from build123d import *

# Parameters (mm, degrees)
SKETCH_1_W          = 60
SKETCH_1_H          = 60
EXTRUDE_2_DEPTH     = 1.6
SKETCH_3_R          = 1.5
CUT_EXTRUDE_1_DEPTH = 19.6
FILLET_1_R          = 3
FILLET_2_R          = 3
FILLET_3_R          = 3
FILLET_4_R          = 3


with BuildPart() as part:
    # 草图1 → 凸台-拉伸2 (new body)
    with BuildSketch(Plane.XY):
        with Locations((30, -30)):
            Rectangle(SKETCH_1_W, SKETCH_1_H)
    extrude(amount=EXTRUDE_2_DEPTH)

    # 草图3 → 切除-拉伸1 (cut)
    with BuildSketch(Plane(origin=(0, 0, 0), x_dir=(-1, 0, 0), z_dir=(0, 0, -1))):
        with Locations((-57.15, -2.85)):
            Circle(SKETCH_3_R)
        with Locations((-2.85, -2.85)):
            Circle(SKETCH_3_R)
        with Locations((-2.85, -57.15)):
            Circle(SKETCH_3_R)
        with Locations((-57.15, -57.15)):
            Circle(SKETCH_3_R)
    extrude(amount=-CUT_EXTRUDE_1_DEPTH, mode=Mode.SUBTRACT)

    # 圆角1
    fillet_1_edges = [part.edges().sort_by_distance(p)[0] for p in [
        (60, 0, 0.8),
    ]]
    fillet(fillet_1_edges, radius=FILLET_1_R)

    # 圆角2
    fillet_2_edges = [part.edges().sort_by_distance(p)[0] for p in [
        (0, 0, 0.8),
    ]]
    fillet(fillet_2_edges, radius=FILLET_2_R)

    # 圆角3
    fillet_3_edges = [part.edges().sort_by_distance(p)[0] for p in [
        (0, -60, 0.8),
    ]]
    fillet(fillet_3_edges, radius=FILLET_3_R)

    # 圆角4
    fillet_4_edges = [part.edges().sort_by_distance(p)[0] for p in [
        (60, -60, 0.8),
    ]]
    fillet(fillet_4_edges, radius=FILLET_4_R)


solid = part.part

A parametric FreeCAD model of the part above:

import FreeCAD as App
import Part
import Sketcher
from FreeCAD import Vector


def edges_at(feature, points):
    """Names of the edges that pass closest to the given points."""
    edges = feature.Shape.Edges
    near = lambda p: min(range(len(edges)), key=lambda i: edges[i].distToShape(Part.Vertex(*p))[0])
    return sorted({f"Edge{near(p) + 1}" for p in points})


def add_polygon(sketch, points):
    """Adds a closed chain of lines whose ends are joined by coincident constraints."""
    first, n = sketch.GeometryCount, len(points)
    for a, b in zip(points, points[1:] + points[:1]):
        sketch.addGeometry(Part.LineSegment(App.Vector(*a, 0), App.Vector(*b, 0)), False)
    for i in range(n):
        sketch.addConstraint(Sketcher.Constraint("Coincident", first + i, 2, first + (i + 1) % n, 1))

doc = App.newDocument("Part")
params = doc.addObject("Spreadsheet::Sheet", "Params")
for row, (alias, value) in enumerate([
    ("sketch1_width", "60 mm"),
    ("pad1_length", "1.6 mm"),
    ("sketch2_diameter", "3 mm"),
    ("pocket1_length", "19.6 mm"),
    ("fillet_radius", "3 mm"),
    ("fillet2_radius", "3 mm"),
    ("fillet3_radius", "3 mm"),
    ("fillet4_radius", "3 mm"),
], start=1):
    params.set(f"A{row}", alias)
    params.set(f"B{row}", "=" + value)
    params.setAlias(f"B{row}", alias)

body = doc.addObject("PartDesign::Body", "Body")

sketch1 = doc.addObject("Sketcher::SketchObject", "Sketch")
body.addObject(sketch1)
sketch1.AttachmentSupport = (doc.XY_Plane, [""])
sketch1.MapMode = "FlatFace"
add_polygon(sketch1, [(0, 0), (0, -60), (60, -60), (60, 0)])
sketch1.addConstraint(Sketcher.Constraint("Vertical", 0))
sketch1.addConstraint(Sketcher.Constraint("Horizontal", 1))
sketch1.addConstraint(Sketcher.Constraint("Vertical", 2))
sketch1.addConstraint(Sketcher.Constraint("Horizontal", 3))
sketch1.addConstraint(Sketcher.Constraint("Coincident", 3, 2, -1, 1))
sketch1.addConstraint(Sketcher.Constraint("Equal", 3, 0))
sketch1.addConstraint(Sketcher.Constraint("DistanceX", 1, 1, 1, 2, 60.0))
sketch1.setExpression("Constraints[10]", "Params.sketch1_width")
pad1 = doc.addObject("PartDesign::Pad", "Pad")
body.addObject(pad1)
pad1.Profile = sketch1
pad1.setExpression("Length", "Params.pad1_length")

sketch2 = doc.addObject("Sketcher::SketchObject", "Sketch001")
body.addObject(sketch2)
sketch2.AttachmentSupport = (doc.XY_Plane, [""])
sketch2.MapMode = "FlatFace"
sketch2.addGeometry(Part.Circle(Vector(57.1, -2.9, 0), Vector(0, 0, 1), 1.5), False)
sketch2.addGeometry(Part.Circle(Vector(2.9, -2.9, 0), Vector(0, 0, 1), 1.5), False)
sketch2.addGeometry(Part.Circle(Vector(2.9, -57.1, 0), Vector(0, 0, 1), 1.5), False)
sketch2.addGeometry(Part.Circle(Vector(57.1, -57.1, 0), Vector(0, 0, 1), 1.5), False)
sketch2.addConstraint(Sketcher.Constraint("Equal", 0, 1))
sketch2.addConstraint(Sketcher.Constraint("Equal", 1, 2))
sketch2.addConstraint(Sketcher.Constraint("Equal", 2, 3))
sketch2.addConstraint(Sketcher.Constraint("Horizontal", 0, 3, 1, 3))
sketch2.addConstraint(Sketcher.Constraint("Horizontal", 2, 3, 3, 3))
sketch2.addConstraint(Sketcher.Constraint("Vertical", 1, 3, 2, 3))
sketch2.addConstraint(Sketcher.Constraint("Vertical", 0, 3, 3, 3))
sketch2.addConstraint(Sketcher.Constraint("Diameter", 0, 3.0))
sketch2.addConstraint(Sketcher.Constraint("DistanceX", 1, 3, 0, 3, 54.3))
sketch2.addConstraint(Sketcher.Constraint("DistanceY", 2, 3, 1, 3, 54.3))
sketch2.addConstraint(Sketcher.Constraint("DistanceX", -1, 1, 0, 3, 57.15))
sketch2.addConstraint(Sketcher.Constraint("DistanceY", 0, 3, -1, 1, 2.85))
sketch2.setExpression("Constraints[7]", "Params.sketch2_diameter")
pocket1 = doc.addObject("PartDesign::Pocket", "Pocket")
body.addObject(pocket1)
pocket1.Profile = sketch2
pocket1.setExpression("Length", "Params.pocket1_length")
pocket1.Reversed = True
doc.recompute()

fillet = doc.addObject("PartDesign::Fillet", "Fillet")
body.addObject(fillet)
fillet.Base = (pocket1, edges_at(pocket1, [(60, 0, 0.8)]))
fillet.setExpression("Radius", "Params.fillet_radius")
doc.recompute()

fillet2 = doc.addObject("PartDesign::Fillet", "Fillet001")
body.addObject(fillet2)
fillet2.Base = (fillet, edges_at(fillet, [(0, 0, 0.8)]))
fillet2.setExpression("Radius", "Params.fillet2_radius")
doc.recompute()

fillet3 = doc.addObject("PartDesign::Fillet", "Fillet002")
body.addObject(fillet3)
fillet3.Base = (fillet2, edges_at(fillet2, [(0, -60, 0.8)]))
fillet3.setExpression("Radius", "Params.fillet3_radius")
doc.recompute()

fillet4 = doc.addObject("PartDesign::Fillet", "Fillet003")
body.addObject(fillet4)
fillet4.Base = (fillet3, edges_at(fillet3, [(60, -60, 0.8)]))
fillet4.setExpression("Radius", "Params.fillet4_radius")

doc.recompute()
